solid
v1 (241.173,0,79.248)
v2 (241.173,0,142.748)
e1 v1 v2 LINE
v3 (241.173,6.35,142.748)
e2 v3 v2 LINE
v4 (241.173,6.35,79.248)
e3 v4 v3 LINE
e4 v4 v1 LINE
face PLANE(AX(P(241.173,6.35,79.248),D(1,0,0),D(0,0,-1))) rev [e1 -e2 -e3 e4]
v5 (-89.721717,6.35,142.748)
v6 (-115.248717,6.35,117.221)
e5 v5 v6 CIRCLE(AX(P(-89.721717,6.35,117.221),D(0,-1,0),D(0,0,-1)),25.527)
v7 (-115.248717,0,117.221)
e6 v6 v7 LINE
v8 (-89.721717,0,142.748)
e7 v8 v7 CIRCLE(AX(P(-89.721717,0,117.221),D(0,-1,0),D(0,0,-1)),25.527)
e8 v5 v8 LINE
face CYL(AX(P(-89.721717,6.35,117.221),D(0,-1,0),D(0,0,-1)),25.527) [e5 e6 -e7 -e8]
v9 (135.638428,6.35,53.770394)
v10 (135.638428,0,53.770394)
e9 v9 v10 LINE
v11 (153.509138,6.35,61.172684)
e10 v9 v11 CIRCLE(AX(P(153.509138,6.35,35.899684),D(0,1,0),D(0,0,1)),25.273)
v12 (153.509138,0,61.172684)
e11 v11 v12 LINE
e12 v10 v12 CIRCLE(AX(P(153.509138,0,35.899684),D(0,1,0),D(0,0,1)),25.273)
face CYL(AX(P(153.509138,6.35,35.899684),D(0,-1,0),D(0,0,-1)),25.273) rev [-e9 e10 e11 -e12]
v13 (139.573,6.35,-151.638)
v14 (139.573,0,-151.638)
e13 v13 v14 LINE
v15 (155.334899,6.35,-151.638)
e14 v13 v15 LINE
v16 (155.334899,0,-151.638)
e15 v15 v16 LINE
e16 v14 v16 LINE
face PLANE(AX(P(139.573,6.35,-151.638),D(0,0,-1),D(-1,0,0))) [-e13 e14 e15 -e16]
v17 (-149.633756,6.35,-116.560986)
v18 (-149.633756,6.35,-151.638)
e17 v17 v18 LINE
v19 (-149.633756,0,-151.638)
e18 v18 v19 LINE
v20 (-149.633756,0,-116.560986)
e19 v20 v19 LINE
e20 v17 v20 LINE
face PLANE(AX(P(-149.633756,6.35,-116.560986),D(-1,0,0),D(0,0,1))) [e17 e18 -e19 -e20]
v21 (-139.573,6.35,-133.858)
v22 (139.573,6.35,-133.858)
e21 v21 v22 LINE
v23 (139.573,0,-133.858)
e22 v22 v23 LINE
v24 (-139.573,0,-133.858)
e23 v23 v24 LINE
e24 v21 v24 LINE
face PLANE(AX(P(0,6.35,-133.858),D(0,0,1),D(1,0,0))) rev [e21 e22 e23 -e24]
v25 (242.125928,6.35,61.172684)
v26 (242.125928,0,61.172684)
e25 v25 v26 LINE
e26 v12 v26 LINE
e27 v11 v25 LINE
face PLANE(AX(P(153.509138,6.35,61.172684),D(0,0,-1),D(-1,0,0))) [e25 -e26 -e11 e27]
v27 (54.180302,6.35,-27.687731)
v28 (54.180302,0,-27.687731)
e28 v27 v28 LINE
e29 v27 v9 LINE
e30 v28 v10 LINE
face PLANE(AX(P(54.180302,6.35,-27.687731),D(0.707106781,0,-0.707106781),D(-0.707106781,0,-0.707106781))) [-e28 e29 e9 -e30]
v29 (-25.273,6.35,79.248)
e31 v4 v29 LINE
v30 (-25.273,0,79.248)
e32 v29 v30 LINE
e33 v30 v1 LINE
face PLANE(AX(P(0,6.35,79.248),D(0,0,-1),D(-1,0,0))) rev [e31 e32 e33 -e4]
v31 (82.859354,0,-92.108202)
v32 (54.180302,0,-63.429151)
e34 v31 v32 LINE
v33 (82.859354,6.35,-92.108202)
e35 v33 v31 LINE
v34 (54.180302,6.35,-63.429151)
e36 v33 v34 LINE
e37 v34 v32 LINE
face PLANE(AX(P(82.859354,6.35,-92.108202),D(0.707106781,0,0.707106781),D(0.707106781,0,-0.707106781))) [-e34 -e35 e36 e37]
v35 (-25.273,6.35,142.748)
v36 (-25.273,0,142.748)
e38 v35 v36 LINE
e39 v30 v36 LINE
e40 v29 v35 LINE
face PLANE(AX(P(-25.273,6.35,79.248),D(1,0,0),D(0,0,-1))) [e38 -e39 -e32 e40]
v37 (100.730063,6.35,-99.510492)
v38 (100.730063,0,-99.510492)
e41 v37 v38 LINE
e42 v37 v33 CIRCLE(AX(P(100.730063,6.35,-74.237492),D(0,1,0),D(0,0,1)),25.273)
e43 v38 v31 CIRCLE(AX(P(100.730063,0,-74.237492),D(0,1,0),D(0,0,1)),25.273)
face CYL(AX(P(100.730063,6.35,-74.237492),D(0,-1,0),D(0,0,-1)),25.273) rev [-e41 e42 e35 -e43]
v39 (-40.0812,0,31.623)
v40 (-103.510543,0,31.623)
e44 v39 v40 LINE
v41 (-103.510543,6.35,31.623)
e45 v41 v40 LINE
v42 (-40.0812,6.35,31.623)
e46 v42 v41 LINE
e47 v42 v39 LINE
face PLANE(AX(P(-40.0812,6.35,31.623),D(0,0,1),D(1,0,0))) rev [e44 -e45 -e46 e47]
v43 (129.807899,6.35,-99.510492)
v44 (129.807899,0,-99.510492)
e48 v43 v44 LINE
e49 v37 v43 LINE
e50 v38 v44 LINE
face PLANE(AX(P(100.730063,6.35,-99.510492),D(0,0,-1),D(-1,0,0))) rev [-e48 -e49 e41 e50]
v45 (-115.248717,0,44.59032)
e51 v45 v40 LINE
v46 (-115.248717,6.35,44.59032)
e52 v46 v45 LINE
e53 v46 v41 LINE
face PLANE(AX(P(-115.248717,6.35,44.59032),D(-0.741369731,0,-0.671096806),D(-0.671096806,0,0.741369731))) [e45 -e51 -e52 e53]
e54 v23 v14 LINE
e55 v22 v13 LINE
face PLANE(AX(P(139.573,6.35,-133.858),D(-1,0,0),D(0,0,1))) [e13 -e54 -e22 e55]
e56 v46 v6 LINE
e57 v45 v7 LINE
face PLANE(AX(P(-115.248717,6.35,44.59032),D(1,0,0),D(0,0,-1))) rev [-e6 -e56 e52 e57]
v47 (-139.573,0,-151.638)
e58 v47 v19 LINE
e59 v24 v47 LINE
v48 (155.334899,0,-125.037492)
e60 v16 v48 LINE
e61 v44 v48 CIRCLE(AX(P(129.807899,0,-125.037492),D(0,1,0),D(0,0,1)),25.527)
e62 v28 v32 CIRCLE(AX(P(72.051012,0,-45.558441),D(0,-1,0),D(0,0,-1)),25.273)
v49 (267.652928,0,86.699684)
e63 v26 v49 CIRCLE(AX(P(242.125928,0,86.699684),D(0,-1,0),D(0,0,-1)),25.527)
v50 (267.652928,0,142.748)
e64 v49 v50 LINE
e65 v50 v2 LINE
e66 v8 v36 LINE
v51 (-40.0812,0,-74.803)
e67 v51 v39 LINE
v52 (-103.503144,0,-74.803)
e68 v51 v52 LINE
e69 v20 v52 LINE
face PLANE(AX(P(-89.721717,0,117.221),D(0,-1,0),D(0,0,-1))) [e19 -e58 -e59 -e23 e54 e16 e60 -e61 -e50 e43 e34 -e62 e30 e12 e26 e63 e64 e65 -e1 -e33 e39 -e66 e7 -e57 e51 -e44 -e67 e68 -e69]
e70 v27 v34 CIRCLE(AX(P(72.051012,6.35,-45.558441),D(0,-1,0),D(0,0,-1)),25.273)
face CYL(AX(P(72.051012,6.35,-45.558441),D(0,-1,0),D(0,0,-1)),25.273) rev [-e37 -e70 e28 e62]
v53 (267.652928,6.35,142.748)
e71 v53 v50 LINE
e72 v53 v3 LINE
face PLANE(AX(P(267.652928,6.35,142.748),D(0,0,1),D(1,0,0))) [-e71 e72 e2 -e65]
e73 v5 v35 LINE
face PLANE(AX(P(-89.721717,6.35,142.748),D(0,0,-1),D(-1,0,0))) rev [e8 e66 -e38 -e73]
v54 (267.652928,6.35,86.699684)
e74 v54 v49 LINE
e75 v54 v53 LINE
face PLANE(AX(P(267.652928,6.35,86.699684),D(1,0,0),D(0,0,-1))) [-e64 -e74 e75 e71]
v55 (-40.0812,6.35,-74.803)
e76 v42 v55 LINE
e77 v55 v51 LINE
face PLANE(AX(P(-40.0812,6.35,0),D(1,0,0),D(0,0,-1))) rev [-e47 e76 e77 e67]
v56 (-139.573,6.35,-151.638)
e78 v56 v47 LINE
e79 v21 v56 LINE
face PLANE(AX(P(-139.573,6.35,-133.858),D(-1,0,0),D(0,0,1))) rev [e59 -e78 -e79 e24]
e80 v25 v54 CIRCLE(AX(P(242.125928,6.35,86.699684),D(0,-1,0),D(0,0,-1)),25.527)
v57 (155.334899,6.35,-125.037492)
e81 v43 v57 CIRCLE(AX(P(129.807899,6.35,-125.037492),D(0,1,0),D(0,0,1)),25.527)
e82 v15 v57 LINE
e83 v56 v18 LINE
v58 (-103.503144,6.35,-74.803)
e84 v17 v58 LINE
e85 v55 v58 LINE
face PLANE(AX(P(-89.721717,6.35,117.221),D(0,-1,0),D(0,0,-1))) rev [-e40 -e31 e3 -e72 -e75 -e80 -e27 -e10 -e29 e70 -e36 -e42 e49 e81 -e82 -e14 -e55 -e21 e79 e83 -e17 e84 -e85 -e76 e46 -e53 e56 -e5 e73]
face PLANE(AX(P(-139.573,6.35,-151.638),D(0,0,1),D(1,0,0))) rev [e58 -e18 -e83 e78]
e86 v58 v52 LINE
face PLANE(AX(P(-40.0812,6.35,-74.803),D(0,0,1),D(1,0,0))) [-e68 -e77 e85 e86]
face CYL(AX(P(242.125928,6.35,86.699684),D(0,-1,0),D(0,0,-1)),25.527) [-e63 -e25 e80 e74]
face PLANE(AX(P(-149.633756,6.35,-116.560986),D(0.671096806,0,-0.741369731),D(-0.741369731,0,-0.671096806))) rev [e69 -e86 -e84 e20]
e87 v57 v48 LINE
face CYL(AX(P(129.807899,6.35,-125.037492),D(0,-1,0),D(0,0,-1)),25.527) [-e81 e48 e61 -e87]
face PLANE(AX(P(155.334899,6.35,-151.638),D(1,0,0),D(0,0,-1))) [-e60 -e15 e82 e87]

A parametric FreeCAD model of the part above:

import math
import FreeCAD as App
import Part
import Sketcher
from FreeCAD import Vector
Q = App.Units.Quantity

doc = App.newDocument("Part")
body = doc.addObject("PartDesign::Body", "Body")

# Sketch on XZ plane
sketch1 = body.newObject("Sketcher::SketchObject", "Sketch")
sketch1.AttachmentSupport = (doc.getObject("XZ_Plane"), [""])
sketch1.MapMode = "FlatFace"
sketch1.addGeometry([
    Part.LineSegment(Vector(-25, 143, 0), Vector(-25, 79, 0)),  # 0
    Part.LineSegment(Vector(-25, 79, 0), Vector(241, 79, 0)),  # 1
    Part.LineSegment(Vector(241, 79, 0), Vector(241, 143, 0)),  # 2
    Part.LineSegment(Vector(241, 143, 0), Vector(268, 143, 0)),  # 3
    Part.LineSegment(Vector(268, 143, 0), Vector(268, 87, 0)),  # 4
    Part.ArcOfCircle(Part.Circle(Vector(242, 87, 0), Vector(0, 0, 1), 26), math.radians(-90), math.radians(0)),  # 5
    Part.LineSegment(Vector(242, 61, 0), Vector(154, 61, 0)),  # 6
    Part.ArcOfCircle(Part.Circle(Vector(154, 36, 0), Vector(0, 0, 1), 25), math.radians(90), math.radians(135)),  # 7
    Part.LineSegment(Vector(136, 54, 0), Vector(54, -28, 0)),  # 8
    Part.ArcOfCircle(Part.Circle(Vector(72, -46, 0), Vector(0, 0, 1), 25), math.radians(135), math.radians(225)),  # 9
    Part.LineSegment(Vector(54, -63, 0), Vector(83, -92, 0)),  # 10
    Part.ArcOfCircle(Part.Circle(Vector(101, -74, 0), Vector(0, 0, 1), 25), math.radians(-135), math.radians(-90)),  # 11
    Part.LineSegment(Vector(101, -100, 0), Vector(130, -100, 0)),  # 12
    Part.ArcOfCircle(Part.Circle(Vector(130, -125, 0), Vector(0, 0, 1), 26), math.radians(0), math.radians(90)),  # 13
    Part.LineSegment(Vector(155, -125, 0), Vector(155, -152, 0)),  # 14
    Part.LineSegment(Vector(155, -152, 0), Vector(140, -152, 0)),  # 15
    Part.LineSegment(Vector(140, -152, 0), Vector(140, -134, 0)),  # 16
    Part.LineSegment(Vector(140, -134, 0), Vector(-140, -134, 0)),  # 17
    Part.LineSegment(Vector(-140, -134, 0), Vector(-140, -152, 0)),  # 18
    Part.LineSegment(Vector(-140, -152, 0), Vector(-150, -152, 0)),  # 19
    Part.LineSegment(Vector(-150, -152, 0), Vector(-150, -117, 0)),  # 20
    Part.LineSegment(Vector(-150, -117, 0), Vector(-104, -75, 0)),  # 21
    Part.LineSegment(Vector(-104, -75, 0), Vector(-40, -75, 0)),  # 22
    Part.LineSegment(Vector(-40, -75, 0), Vector(-40, 32, 0)),  # 23
    Part.LineSegment(Vector(-40, 32, 0), Vector(-104, 32, 0)),  # 24
    Part.LineSegment(Vector(-104, 32, 0), Vector(-115, 45, 0)),  # 25
    Part.LineSegment(Vector(-115, 45, 0), Vector(-115, 117, 0)),  # 26
    Part.ArcOfCircle(Part.Circle(Vector(-90, 117, 0), Vector(0, 0, 1), 26), math.radians(90), math.radians(180)),  # 27
    Part.LineSegment(Vector(-90, 143, 0), Vector(-25, 143, 0)),  # 28
], False)
sketch1.addConstraint([
    Sketcher.Constraint("Coincident", 0, 2, 1, 1),
    Sketcher.Constraint("Coincident", 1, 2, 2, 1),
    Sketcher.Constraint("Coincident", 2, 2, 3, 1),
    Sketcher.Constraint("Coincident", 3, 2, 4, 1),
    Sketcher.Constraint("Tangent", 4, 2, 5, 2),
    Sketcher.Constraint("Tangent", 5, 1, 6, 1),
    Sketcher.Constraint("Tangent", 6, 2, 7, 1),
    Sketcher.Constraint("Tangent", 7, 2, 8, 1),
    Sketcher.Constraint("Tangent", 8, 2, 9, 1),
    Sketcher.Constraint("Tangent", 9, 2, 10, 1),
    Sketcher.Constraint("Tangent", 10, 2, 11, 1),
    Sketcher.Constraint("Tangent", 11, 2, 12, 1),
    Sketcher.Constraint("Tangent", 12, 2, 13, 2),
    Sketcher.Constraint("Tangent", 13, 1, 14, 1),
    Sketcher.Constraint("Coincident", 14, 2, 15, 1),
    Sketcher.Constraint("Coincident", 15, 2, 16, 1),
    Sketcher.Constraint("Coincident", 16, 2, 17, 1),
    Sketcher.Constraint("Coincident", 17, 2, 18, 1),
    Sketcher.Constraint("Coincident", 18, 2, 19, 1),
    Sketcher.Constraint("Coincident", 19, 2, 20, 1),
    Sketcher.Constraint("Coincident", 20, 2, 21, 1),
    Sketcher.Constraint("Coincident", 21, 2, 22, 1),
    Sketcher.Constraint("Coincident", 22, 2, 23, 1),
    Sketcher.Constraint("Coincident", 23, 2, 24, 1),
    Sketcher.Constraint("Coincident", 24, 2, 25, 1),
    Sketcher.Constraint("Coincident", 25, 2, 26, 1),
    Sketcher.Constraint("Tangent", 26, 2, 27, 2),
    Sketcher.Constraint("Tangent", 27, 1, 28, 1),
    Sketcher.Constraint("Coincident", 28, 2, 0, 1),
    Sketcher.Constraint("Vertical", 0),
    Sketcher.Constraint("Horizontal", 1),
    Sketcher.Constraint("Vertical", 2),
    Sketcher.Constraint("Horizontal", 3),
    Sketcher.Constraint("Vertical", 4),
    Sketcher.Constraint("Horizontal", 6),
    Sketcher.Constraint("Horizontal", 12),
    Sketcher.Constraint("Vertical", 14),
    Sketcher.Constraint("Horizontal", 15),
    Sketcher.Constraint("Vertical", 16),
    Sketcher.Constraint("Horizontal", 17),
    Sketcher.Constraint("Vertical", 18),
    Sketcher.Constraint("Horizontal", 19),
    Sketcher.Constraint("Vertical", 20),
    Sketcher.Constraint("Horizontal", 22),
    Sketcher.Constraint("Vertical", 23),
    Sketcher.Constraint("Horizontal", 24),
    Sketcher.Constraint("Vertical", 26),
    Sketcher.Constraint("Horizontal", 28),
    Sketcher.Constraint("Equal", 7, 9),
    Sketcher.Constraint("Equal", 9, 11),
    Sketcher.Constraint("Equal", 5, 13),
    Sketcher.Constraint("Equal", 13, 27),
    Sketcher.Constraint("Symmetric", 15, 2, 18, 2, -2),
    Sketcher.Constraint("Perpendicular", 8, 10),
    Sketcher.Constraint("Perpendicular", 21, 25),
    Sketcher.Constraint("Horizontal", 3, 2, 27, 1),
    Sketcher.Constraint("Vertical", 8, 2, 9, 2),
    Sketcher.Constraint("DistanceY", 0, 2, 0, 1, Q("2.5 in")),
    Sketcher.Constraint("DistanceY", 16, 1, 16, 2, Q("0.7 in")),
    Sketcher.Constraint("Radius", 5, Q("1.005 in")),
    Sketcher.Constraint("Radius", 7, Q("0.995 in")),
    Sketcher.Constraint("DistanceX", 1, 1, 1, 2, Q("10.49 in")),
    Sketcher.Constraint("DistanceX", 17, 2, 17, 1, Q("10.99 in")),
    Sketcher.Constraint("DistanceY", 23, 1, 23, 2, Q("4.19 in")),
    Sketcher.Constraint("DistanceX", 17, 2, 0, 2, Q("4.5 in")),
    Sketcher.Constraint("DistanceY", -1, 1, 0, 2, Q("3.12 in")),
    Sketcher.Constraint("DistanceY", 14, 2, -1, 1, Q("5.97 in")),
    Sketcher.Constraint("DistanceY", 23, 2, 27, 3, Q("3.37 in")),
    Sketcher.Constraint("DistanceX", 22, 2, -1, 1, Q("1.578 in")),
    Sketcher.Constraint("DistanceX", 15, 2, 15, 1, Q("15.761899 mm")),
    Sketcher.Constraint("DistanceX", 3, 1, 3, 2, Q("26.479928 mm")),
    Sketcher.Constraint("DistanceX", 6, 2, 6, 1, Q("88.616791 mm")),
    Sketcher.Constraint("DistanceY", 26, 1, 26, 2, Q("72.63068 mm")),
    Sketcher.Constraint("DistanceX", 24, 2, 21, 2, Q("0.007399 mm")),
    Sketcher.Constraint("Distance", 21, Q("62.22349 mm")),
    Sketcher.Constraint("Distance", 25, Q("17.491029 mm")),
    Sketcher.Constraint("DistanceX", 12, 1, 12, 2, Q("29.077835 mm")),
    Sketcher.Constraint("DistanceX", 19, 2, 19, 1, Q("10.060756 mm")),
    Sketcher.Constraint("DistanceY", 4, 2, 4, 1, Q("56.048316 mm")),
    Sketcher.Constraint("DistanceY", 14, 2, 14, 1, Q("26.600508 mm")),
])
pad1 = body.newObject("PartDesign::Pad", "Pad")
pad1.Profile = sketch1
pad1.Length = Q("0.25 in")
pad1.Reversed = True

doc.recompute()
